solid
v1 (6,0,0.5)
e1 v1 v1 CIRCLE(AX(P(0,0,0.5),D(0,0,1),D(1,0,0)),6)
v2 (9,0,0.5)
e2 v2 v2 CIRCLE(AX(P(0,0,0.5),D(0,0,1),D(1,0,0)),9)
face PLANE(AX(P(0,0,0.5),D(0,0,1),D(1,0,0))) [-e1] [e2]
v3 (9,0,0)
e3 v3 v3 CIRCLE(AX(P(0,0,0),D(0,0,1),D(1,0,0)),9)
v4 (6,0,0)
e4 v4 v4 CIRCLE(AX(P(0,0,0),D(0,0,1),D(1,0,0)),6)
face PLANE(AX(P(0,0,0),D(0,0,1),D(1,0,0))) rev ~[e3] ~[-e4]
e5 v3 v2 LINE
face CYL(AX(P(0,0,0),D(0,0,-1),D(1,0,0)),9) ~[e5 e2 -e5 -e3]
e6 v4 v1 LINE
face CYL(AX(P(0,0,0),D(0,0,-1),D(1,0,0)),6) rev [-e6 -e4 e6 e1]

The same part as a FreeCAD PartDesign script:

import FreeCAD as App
import Part
import Sketcher

V = App.Vector

doc = App.newDocument("Part")
body = doc.addObject("PartDesign::Body", "Body")

sketch1 = body.newObject("Sketcher::SketchObject", "Sketch")
sketch1.AttachmentSupport = (doc.getObject("XY_Plane"), [""])
sketch1.MapMode = "FlatFace"
sketch1.addGeometry(Part.Circle(V(0, 0, 0), V(0, 0, 1), 9), False)
sketch1.addGeometry(Part.Circle(V(0, 0, 0), V(0, 0, 1), 6), False)
sketch1.addConstraint(Sketcher.Constraint("Coincident", 0, 3, -1, 1))
sketch1.addConstraint(Sketcher.Constraint("Coincident", 1, 3, -1, 1))
sketch1.addConstraint(Sketcher.Constraint("Diameter", 0, 18.0))
sketch1.addConstraint(Sketcher.Constraint("Diameter", 1, 12.0))
pad1 = body.newObject("PartDesign::Pad", "Pad")
pad1.Profile = sketch1
pad1.Length = 0.5

doc.recompute()
